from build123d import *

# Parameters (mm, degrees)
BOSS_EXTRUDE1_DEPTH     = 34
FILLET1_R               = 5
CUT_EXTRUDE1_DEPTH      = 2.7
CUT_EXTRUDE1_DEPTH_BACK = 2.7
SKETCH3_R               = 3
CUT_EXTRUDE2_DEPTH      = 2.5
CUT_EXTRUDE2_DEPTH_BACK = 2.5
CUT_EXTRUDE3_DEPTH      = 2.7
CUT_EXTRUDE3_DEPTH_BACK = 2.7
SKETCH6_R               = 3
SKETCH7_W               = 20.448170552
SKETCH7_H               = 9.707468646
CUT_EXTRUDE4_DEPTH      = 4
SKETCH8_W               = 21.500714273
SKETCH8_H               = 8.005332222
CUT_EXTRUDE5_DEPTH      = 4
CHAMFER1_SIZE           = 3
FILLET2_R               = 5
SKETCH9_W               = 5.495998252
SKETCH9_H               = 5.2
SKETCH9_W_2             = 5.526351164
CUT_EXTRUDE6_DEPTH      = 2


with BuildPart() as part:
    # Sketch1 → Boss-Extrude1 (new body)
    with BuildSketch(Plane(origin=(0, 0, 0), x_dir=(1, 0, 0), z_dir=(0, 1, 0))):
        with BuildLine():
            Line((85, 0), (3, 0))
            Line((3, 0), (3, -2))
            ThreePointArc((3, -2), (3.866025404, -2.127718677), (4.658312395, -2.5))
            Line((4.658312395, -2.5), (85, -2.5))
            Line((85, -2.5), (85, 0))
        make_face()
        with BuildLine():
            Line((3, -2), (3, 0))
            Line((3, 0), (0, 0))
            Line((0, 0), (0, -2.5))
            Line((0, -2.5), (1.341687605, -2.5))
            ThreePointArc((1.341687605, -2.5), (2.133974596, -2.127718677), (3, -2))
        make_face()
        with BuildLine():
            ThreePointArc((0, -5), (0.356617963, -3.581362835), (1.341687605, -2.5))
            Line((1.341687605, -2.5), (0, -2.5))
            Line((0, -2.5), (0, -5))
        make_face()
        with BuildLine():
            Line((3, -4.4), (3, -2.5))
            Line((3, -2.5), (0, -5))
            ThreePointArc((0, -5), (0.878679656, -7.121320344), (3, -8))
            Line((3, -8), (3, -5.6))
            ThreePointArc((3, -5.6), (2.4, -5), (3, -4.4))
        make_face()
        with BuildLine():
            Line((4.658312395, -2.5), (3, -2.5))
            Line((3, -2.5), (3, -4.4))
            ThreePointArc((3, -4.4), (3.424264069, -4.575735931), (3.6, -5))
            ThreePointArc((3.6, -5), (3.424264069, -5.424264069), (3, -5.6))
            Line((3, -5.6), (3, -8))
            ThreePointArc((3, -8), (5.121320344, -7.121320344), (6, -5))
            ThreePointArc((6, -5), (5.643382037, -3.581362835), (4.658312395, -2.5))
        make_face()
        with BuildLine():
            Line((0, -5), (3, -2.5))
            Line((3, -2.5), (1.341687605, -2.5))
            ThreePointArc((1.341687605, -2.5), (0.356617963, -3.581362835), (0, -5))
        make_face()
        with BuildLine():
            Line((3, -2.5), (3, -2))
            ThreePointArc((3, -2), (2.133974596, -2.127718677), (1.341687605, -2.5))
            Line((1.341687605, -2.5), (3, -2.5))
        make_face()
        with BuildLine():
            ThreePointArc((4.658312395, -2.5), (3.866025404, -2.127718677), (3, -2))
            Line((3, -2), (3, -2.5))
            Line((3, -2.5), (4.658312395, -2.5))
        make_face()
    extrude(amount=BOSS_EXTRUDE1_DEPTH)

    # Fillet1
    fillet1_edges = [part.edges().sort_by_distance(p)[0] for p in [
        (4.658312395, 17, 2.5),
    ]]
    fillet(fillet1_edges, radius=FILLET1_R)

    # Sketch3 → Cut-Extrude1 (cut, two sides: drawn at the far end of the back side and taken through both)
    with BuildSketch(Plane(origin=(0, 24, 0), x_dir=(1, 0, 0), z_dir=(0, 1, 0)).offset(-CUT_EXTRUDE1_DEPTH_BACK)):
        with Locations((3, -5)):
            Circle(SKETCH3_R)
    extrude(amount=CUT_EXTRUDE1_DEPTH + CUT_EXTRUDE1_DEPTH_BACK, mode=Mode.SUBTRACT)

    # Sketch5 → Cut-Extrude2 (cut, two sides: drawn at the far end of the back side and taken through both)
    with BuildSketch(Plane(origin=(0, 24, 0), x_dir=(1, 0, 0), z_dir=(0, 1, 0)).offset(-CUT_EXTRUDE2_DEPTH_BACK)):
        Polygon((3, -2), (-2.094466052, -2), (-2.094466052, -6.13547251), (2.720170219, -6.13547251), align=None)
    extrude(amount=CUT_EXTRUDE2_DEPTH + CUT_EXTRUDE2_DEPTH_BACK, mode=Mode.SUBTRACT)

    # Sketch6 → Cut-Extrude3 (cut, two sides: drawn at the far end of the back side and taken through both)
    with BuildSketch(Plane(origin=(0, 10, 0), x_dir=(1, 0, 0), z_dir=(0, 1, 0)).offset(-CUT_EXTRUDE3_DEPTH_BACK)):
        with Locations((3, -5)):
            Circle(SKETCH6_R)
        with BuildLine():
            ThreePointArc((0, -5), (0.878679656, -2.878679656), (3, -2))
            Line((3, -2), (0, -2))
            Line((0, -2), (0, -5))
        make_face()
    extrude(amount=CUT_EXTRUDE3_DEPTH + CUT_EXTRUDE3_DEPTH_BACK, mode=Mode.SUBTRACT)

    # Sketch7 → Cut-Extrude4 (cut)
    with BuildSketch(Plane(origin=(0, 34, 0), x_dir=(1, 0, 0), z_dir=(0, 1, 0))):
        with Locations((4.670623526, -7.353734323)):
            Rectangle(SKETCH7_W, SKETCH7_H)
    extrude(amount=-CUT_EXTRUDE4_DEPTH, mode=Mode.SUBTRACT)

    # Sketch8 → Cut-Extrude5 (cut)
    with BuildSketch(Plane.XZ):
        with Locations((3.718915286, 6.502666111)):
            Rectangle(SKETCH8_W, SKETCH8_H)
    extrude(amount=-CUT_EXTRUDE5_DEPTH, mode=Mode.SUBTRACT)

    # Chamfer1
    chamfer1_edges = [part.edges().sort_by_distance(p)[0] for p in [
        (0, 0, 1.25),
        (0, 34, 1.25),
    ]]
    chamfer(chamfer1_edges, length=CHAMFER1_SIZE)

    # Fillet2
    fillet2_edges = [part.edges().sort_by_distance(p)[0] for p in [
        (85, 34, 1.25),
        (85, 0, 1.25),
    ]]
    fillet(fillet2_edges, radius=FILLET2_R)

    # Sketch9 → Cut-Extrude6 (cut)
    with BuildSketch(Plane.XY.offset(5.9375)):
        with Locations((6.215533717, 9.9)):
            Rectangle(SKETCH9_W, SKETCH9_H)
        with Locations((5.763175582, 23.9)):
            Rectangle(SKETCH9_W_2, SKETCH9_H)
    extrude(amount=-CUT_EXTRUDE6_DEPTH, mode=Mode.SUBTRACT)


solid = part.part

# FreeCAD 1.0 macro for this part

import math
import FreeCAD as App
import Part
import Sketcher

V = App.Vector


def edges_at(feature, points):
    """Names of the edges that pass closest to the given points."""
    edges = feature.Shape.Edges
    near = lambda p: min(range(len(edges)), key=lambda i: edges[i].distToShape(Part.Vertex(*p))[0])
    return sorted({f"Edge{near(p) + 1}" for p in points})


def add_polygon(sketch, points):
    """Adds a closed chain of lines whose ends are joined by coincident constraints."""
    first, n = sketch.GeometryCount, len(points)
    for a, b in zip(points, points[1:] + points[:1]):
        sketch.addGeometry(Part.LineSegment(App.Vector(*a, 0), App.Vector(*b, 0)), False)
    for i in range(n):
        sketch.addConstraint(Sketcher.Constraint("Coincident", first + i, 2, first + (i + 1) % n, 1))

doc = App.newDocument("Part")
params = doc.addObject("Spreadsheet::Sheet", "Params")
for row, (alias, value) in enumerate([
    ("sketch1_radius", "3 mm"),
    ("sketch1_radius2", "0.6 mm"),
    ("sketch1_width", "85 mm"),
    ("sketch1_height", "5 mm"),
    ("sketch1_height2", "2.5 mm"),
    ("pad1_length", "34 mm"),
    ("fillet_radius", "5 mm"),
    ("sketch2_diameter", "6 mm"),
    ("pocket1_length", "2.7 mm"),
    ("pocket1_length2", "2.7 mm"),
    ("pocket2_length", "2.5 mm"),
    ("pocket2_length2", "2.5 mm"),
    ("sketch4_radius", "3 mm"),
    ("pocket3_length", "2.7 mm"),
    ("pocket3_length2", "2.7 mm"),
    ("pocket4_length", "4 mm"),
    ("pocket5_length", "4 mm"),
    ("chamfer_size", "3 mm"),
    ("fillet2_radius", "5 mm"),
    ("sketch7_height", "5.2 mm"),
    ("pocket6_length", "2 mm"),
], start=1):
    params.set(f"A{row}", alias)
    params.set(f"B{row}", "=" + value)
    params.setAlias(f"B{row}", alias)

body = doc.addObject("PartDesign::Body", "Body")

# Sketch on XZ plane
sketch1 = body.newObject("Sketcher::SketchObject", "Sketch")
sketch1.AttachmentSupport = (doc.getObject("XZ_Plane"), [""])
sketch1.MapMode = "FlatFace"
sketch1.addGeometry(Part.ArcOfCircle(Part.Circle(V(3, 5, 0), V(0, 0, 1), 3), math.radians(-56), math.radians(0)), False)
sketch1.addGeometry(Part.LineSegment(V(4.7, 2.5, 0), V(85, 2.5, 0)), False)
sketch1.addGeometry(Part.LineSegment(V(85, 2.5, 0), V(85, 0, 0)), False)
sketch1.addGeometry(Part.LineSegment(V(85, 0, 0), V(0, 0, 0)), False)
sketch1.addGeometry(Part.LineSegment(V(0, 0, 0), V(0, 5, 0)), False)
sketch1.addGeometry(Part.ArcOfCircle(Part.Circle(V(3, 5, 0), V(0, 0, 1), 3), math.radians(90), math.radians(180)), False)
sketch1.addGeometry(Part.ArcOfCircle(Part.Circle(V(3, 5, 0), V(0, 0, 1), 3), math.radians(0), math.radians(90)), False)
sketch1.addGeometry(Part.ArcOfCircle(Part.Circle(V(3, 5, 0), V(0, 0, 1), 0.6), math.radians(0), math.radians(90)), False)
sketch1.addGeometry(Part.ArcOfCircle(Part.Circle(V(3, 5, 0), V(0, 0, 1), 0.6), math.radians(90), math.radians(270)), False)
sketch1.addGeometry(Part.ArcOfCircle(Part.Circle(V(3, 5, 0), V(0, 0, 1), 0.6), math.radians(-90), math.radians(0)), False)
sketch1.addConstraint(Sketcher.Constraint("Coincident", 0, 1, 1, 1))
sketch1.addConstraint(Sketcher.Constraint("Coincident", 1, 2, 2, 1))
sketch1.addConstraint(Sketcher.Constraint("Coincident", 2, 2, 3, 1))
sketch1.addConstraint(Sketcher.Constraint("Coincident", 3, 2, 4, 1))
sketch1.addConstraint(Sketcher.Constraint("Tangent", 4, 2, 5, 2))
sketch1.addConstraint(Sketcher.Constraint("Tangent", 5, 1, 6, 2))
sketch1.addConstraint(Sketcher.Constraint("Tangent", 6, 1, 0, 2))
sketch1.addConstraint(Sketcher.Constraint("Tangent", 7, 2, 8, 1))
sketch1.addConstraint(Sketcher.Constraint("Tangent", 8, 2, 9, 1))
sketch1.addConstraint(Sketcher.Constraint("Tangent", 9, 2, 7, 1))
sketch1.addConstraint(Sketcher.Constraint("Horizontal", 1))
sketch1.addConstraint(Sketcher.Constraint("Vertical", 2))
sketch1.addConstraint(Sketcher.Constraint("Horizontal", 3))
sketch1.addConstraint(Sketcher.Constraint("Vertical", 4))
sketch1.addConstraint(Sketcher.Constraint("Coincident", 3, 2, -1, 1))
sketch1.addConstraint(Sketcher.Constraint("Coincident", 5, 3, 0, 3))
sketch1.addConstraint(Sketcher.Constraint("Coincident", 7, 3, 0, 3))
sketch1.addConstraint(Sketcher.Constraint("Horizontal", 4, 2, 6, 1))
sketch1.addConstraint(Sketcher.Constraint("Horizontal", 6, 1, 9, 2))
sketch1.addConstraint(Sketcher.Constraint("Vertical", 9, 3, 5, 1))
sketch1.addConstraint(Sketcher.Constraint("Vertical", 5, 1, 7, 2))
sketch1.addConstraint(Sketcher.Constraint("Vertical", 7, 2, 8, 2))
sketch1.addConstraint(Sketcher.Constraint("Radius", 0, 3.0))
sketch1.addConstraint(Sketcher.Constraint("Radius", 7, 0.6))
sketch1.addConstraint(Sketcher.Constraint("DistanceX", 3, 2, 3, 1, 85.0))
sketch1.addConstraint(Sketcher.Constraint("DistanceY", 4, 1, 4, 2, 5.0))
sketch1.addConstraint(Sketcher.Constraint("DistanceY", 2, 2, 2, 1, 2.5))
sketch1.setExpression("Constraints[22]", "Params.sketch1_radius")
sketch1.setExpression("Constraints[23]", "Params.sketch1_radius2")
sketch1.setExpression("Constraints[24]", "Params.sketch1_width")
sketch1.setExpression("Constraints[25]", "Params.sketch1_height")
sketch1.setExpression("Constraints[26]", "Params.sketch1_height2")
pad1 = body.newObject("PartDesign::Pad", "Pad")
pad1.Profile = sketch1
pad1.setExpression("Length", "Params.pad1_length")
pad1.Reversed = True
doc.recompute()

fillet = body.newObject("PartDesign::Fillet", "Fillet")
fillet.Base = (pad1, edges_at(pad1, [(4.658, 17, 2.5)]))
fillet.setExpression("Radius", "Params.fillet_radius")

# Sketch on XZ plane
sketch2 = body.newObject("Sketcher::SketchObject", "Sketch001")
sketch2.AttachmentSupport = (doc.getObject("XZ_Plane"), [""])
sketch2.MapMode = "FlatFace"
sketch2.AttachmentOffset = App.Placement(V(0, 0, -24), App.Rotation())
sketch2.addGeometry(Part.Circle(V(3, 5, 0), V(0, 0, 1), 3), False)
sketch2.addConstraint(Sketcher.Constraint("Diameter", 0, 6.0))
sketch2.addConstraint(Sketcher.Constraint("DistanceX", -1, 1, 0, 3, 3.0))
sketch2.addConstraint(Sketcher.Constraint("DistanceY", -1, 1, 0, 3, 5.0))
sketch2.setExpression("Constraints[0]", "Params.sketch2_diameter")
pocket1 = body.newObject("PartDesign::Pocket", "Pocket")
pocket1.Profile = sketch2
pocket1.Type = "TwoLengths"
pocket1.setExpression("Length", "Params.pocket1_length")
pocket1.setExpression("Length2", "Params.pocket1_length2")

# Sketch on XZ plane
sketch3 = body.newObject("Sketcher::SketchObject", "Sketch002")
sketch3.AttachmentSupport = (doc.getObject("XZ_Plane"), [""])
sketch3.MapMode = "FlatFace"
sketch3.AttachmentOffset = App.Placement(V(0, 0, -24), App.Rotation())
add_polygon(sketch3, [(3, 2), (-2.1, 2), (-2.1, 6.1), (2.7, 6.1)])  # lines 0-3
sketch3.addConstraint(Sketcher.Constraint("Horizontal", 0))
sketch3.addConstraint(Sketcher.Constraint("Vertical", 1))
sketch3.addConstraint(Sketcher.Constraint("Horizontal", 2))
sketch3.addConstraint(Sketcher.Constraint("DistanceY", -1, 1, 0, 2, 2.0))
sketch3.addConstraint(Sketcher.Constraint("DistanceX", -1, 1, 3, 2, 3.0))
sketch3.addConstraint(Sketcher.Constraint("Distance", 3, 4.144929))
sketch3.addConstraint(Sketcher.Constraint("DistanceX", 0, 2, 0, 1, 5.094466))
sketch3.addConstraint(Sketcher.Constraint("DistanceX", 2, 1, 2, 2, 4.814636))
pocket2 = body.newObject("PartDesign::Pocket", "Pocket001")
pocket2.Profile = sketch3
pocket2.Type = "TwoLengths"
pocket2.setExpression("Length", "Params.pocket2_length")
pocket2.setExpression("Length2", "Params.pocket2_length2")

# Sketch on XZ plane
sketch4 = body.newObject("Sketcher::SketchObject", "Sketch003")
sketch4.AttachmentSupport = (doc.getObject("XZ_Plane"), [""])
sketch4.MapMode = "FlatFace"
sketch4.AttachmentOffset = App.Placement(V(0, 0, -10), App.Rotation())
sketch4.addGeometry(Part.LineSegment(V(3, 2, 0), V(0, 2, 0)), False)
sketch4.addGeometry(Part.LineSegment(V(0, 2, 0), V(0, 5, 0)), False)
sketch4.addGeometry(Part.ArcOfCircle(Part.Circle(V(3, 5, 0), V(0, 0, 1), 3), math.radians(-90), math.radians(180)), False)
sketch4.addConstraint(Sketcher.Constraint("Coincident", 0, 2, 1, 1))
sketch4.addConstraint(Sketcher.Constraint("Tangent", 1, 2, 2, 2))
sketch4.addConstraint(Sketcher.Constraint("Tangent", 2, 1, 0, 1))
sketch4.addConstraint(Sketcher.Constraint("Horizontal", 0))
sketch4.addConstraint(Sketcher.Constraint("Vertical", 1))
sketch4.addConstraint(Sketcher.Constraint("PointOnObject", 0, 2, -2))
sketch4.addConstraint(Sketcher.Constraint("Radius", 2, 3.0))
sketch4.addConstraint(Sketcher.Constraint("DistanceY", -1, 1, 2, 3, 5.0))
sketch4.setExpression("Constraints[6]", "Params.sketch4_radius")
pocket3 = body.newObject("PartDesign::Pocket", "Pocket002")
pocket3.Profile = sketch4
pocket3.Type = "TwoLengths"
pocket3.setExpression("Length", "Params.pocket3_length")
pocket3.setExpression("Length2", "Params.pocket3_length2")

# Sketch on XZ plane
sketch5 = body.newObject("Sketcher::SketchObject", "Sketch004")
sketch5.AttachmentSupport = (doc.getObject("XZ_Plane"), [""])
sketch5.MapMode = "FlatFace"
sketch5.AttachmentOffset = App.Placement(V(0, 0, -34), App.Rotation())
add_polygon(sketch5, [(-6, 2), (-6, 12), (15, 12), (15, 2)])  # lines 0-3
sketch5.addConstraint(Sketcher.Constraint("Vertical", 0))
sketch5.addConstraint(Sketcher.Constraint("Horizontal", 1))
sketch5.addConstraint(Sketcher.Constraint("Vertical", 2))
sketch5.addConstraint(Sketcher.Constraint("Horizontal", 3))
sketch5.addConstraint(Sketcher.Constraint("DistanceY", -1, 1, 2, 2, 2.5))
sketch5.addConstraint(Sketcher.Constraint("DistanceX", 1, 1, 1, 2, 20.448171))
sketch5.addConstraint(Sketcher.Constraint("DistanceY", 0, 1, 0, 2, 9.707469))
sketch5.addConstraint(Sketcher.Constraint("DistanceX", 0, 2, -1, 1, 5.553462))
pocket4 = body.newObject("PartDesign::Pocket", "Pocket003")
pocket4.Profile = sketch5
pocket4.setExpression("Length", "Params.pocket4_length")
pocket4.Reversed = True

# Sketch on XZ plane
sketch6 = body.newObject("Sketcher::SketchObject", "Sketch005")
sketch6.AttachmentSupport = (doc.getObject("XZ_Plane"), [""])
sketch6.MapMode = "FlatFace"
add_polygon(sketch6, [(-7, 11), (-7, 2), (14, 2), (14, 11)])  # lines 0-3
sketch6.addConstraint(Sketcher.Constraint("Vertical", 0))
sketch6.addConstraint(Sketcher.Constraint("Horizontal", 1))
sketch6.addConstraint(Sketcher.Constraint("Vertical", 2))
sketch6.addConstraint(Sketcher.Constraint("Horizontal", 3))
sketch6.addConstraint(Sketcher.Constraint("DistanceY", -1, 1, 0, 2, 2.5))
sketch6.addConstraint(Sketcher.Constraint("DistanceX", 1, 1, 1, 2, 21.500714))
sketch6.addConstraint(Sketcher.Constraint("DistanceY", 0, 2, 0, 1, 8.005332))
sketch6.addConstraint(Sketcher.Constraint("DistanceX", 0, 2, -1, 1, 7.031442))
pocket5 = body.newObject("PartDesign::Pocket", "Pocket004")
pocket5.Profile = sketch6
pocket5.setExpression("Length", "Params.pocket5_length")
doc.recompute()

chamfer = body.newObject("PartDesign::Chamfer", "Chamfer")
chamfer.Base = (pocket5, edges_at(pocket5, [(0, 0, 1.25), (0, 34, 1.25)]))
chamfer.setExpression("Size", "Params.chamfer_size")
doc.recompute()

fillet2 = body.newObject("PartDesign::Fillet", "Fillet001")
fillet2.Base = (chamfer, edges_at(chamfer, [(85, 34, 1.25), (85, 0, 1.25)]))
fillet2.setExpression("Radius", "Params.fillet2_radius")

# Sketch on XY plane
sketch7 = body.newObject("Sketcher::SketchObject", "Sketch006")
sketch7.AttachmentSupport = (doc.getObject("XY_Plane"), [""])
sketch7.MapMode = "FlatFace"
sketch7.AttachmentOffset = App.Placement(V(0, 0, 5.9375), App.Rotation())
add_polygon(sketch7, [(3, 12), (3, 7), (9, 7), (9, 12)])  # lines 0-3
add_polygon(sketch7, [(3, 26), (3, 21), (9, 21), (9, 26)])  # lines 4-7
sketch7.addConstraint(Sketcher.Constraint("Vertical", 0))
sketch7.addConstraint(Sketcher.Constraint("Horizontal", 1))
sketch7.addConstraint(Sketcher.Constraint("Vertical", 2))
sketch7.addConstraint(Sketcher.Constraint("Horizontal", 3))
sketch7.addConstraint(Sketcher.Constraint("Vertical", 4))
sketch7.addConstraint(Sketcher.Constraint("Horizontal", 5))
sketch7.addConstraint(Sketcher.Constraint("Vertical", 6))
sketch7.addConstraint(Sketcher.Constraint("Horizontal", 7))
sketch7.addConstraint(Sketcher.Constraint("Equal", 2, 4))
sketch7.addConstraint(Sketcher.Constraint("DistanceY", 0, 2, 0, 1, 5.2))
sketch7.addConstraint(Sketcher.Constraint("DistanceX", -1, 1, 4, 2, 3.0))
sketch7.addConstraint(Sketcher.Constraint("DistanceY", 0, 2, 4, 2, 14.0))
sketch7.addConstraint(Sketcher.Constraint("DistanceY", -1, 1, 0, 2, 7.3))
sketch7.addConstraint(Sketcher.Constraint("DistanceX", 1, 1, 1, 2, 5.495998))
sketch7.addConstraint(Sketcher.Constraint("DistanceX", 5, 1, 5, 2, 5.526351))
sketch7.addConstraint(Sketcher.Constraint("DistanceX", 5, 2, 2, 2, 0.437182))
sketch7.setExpression("Constraints[17]", "Params.sketch7_height")
pocket6 = body.newObject("PartDesign::Pocket", "Pocket005")
pocket6.Profile = sketch7
pocket6.setExpression("Length", "Params.pocket6_length")

doc.recompute()
